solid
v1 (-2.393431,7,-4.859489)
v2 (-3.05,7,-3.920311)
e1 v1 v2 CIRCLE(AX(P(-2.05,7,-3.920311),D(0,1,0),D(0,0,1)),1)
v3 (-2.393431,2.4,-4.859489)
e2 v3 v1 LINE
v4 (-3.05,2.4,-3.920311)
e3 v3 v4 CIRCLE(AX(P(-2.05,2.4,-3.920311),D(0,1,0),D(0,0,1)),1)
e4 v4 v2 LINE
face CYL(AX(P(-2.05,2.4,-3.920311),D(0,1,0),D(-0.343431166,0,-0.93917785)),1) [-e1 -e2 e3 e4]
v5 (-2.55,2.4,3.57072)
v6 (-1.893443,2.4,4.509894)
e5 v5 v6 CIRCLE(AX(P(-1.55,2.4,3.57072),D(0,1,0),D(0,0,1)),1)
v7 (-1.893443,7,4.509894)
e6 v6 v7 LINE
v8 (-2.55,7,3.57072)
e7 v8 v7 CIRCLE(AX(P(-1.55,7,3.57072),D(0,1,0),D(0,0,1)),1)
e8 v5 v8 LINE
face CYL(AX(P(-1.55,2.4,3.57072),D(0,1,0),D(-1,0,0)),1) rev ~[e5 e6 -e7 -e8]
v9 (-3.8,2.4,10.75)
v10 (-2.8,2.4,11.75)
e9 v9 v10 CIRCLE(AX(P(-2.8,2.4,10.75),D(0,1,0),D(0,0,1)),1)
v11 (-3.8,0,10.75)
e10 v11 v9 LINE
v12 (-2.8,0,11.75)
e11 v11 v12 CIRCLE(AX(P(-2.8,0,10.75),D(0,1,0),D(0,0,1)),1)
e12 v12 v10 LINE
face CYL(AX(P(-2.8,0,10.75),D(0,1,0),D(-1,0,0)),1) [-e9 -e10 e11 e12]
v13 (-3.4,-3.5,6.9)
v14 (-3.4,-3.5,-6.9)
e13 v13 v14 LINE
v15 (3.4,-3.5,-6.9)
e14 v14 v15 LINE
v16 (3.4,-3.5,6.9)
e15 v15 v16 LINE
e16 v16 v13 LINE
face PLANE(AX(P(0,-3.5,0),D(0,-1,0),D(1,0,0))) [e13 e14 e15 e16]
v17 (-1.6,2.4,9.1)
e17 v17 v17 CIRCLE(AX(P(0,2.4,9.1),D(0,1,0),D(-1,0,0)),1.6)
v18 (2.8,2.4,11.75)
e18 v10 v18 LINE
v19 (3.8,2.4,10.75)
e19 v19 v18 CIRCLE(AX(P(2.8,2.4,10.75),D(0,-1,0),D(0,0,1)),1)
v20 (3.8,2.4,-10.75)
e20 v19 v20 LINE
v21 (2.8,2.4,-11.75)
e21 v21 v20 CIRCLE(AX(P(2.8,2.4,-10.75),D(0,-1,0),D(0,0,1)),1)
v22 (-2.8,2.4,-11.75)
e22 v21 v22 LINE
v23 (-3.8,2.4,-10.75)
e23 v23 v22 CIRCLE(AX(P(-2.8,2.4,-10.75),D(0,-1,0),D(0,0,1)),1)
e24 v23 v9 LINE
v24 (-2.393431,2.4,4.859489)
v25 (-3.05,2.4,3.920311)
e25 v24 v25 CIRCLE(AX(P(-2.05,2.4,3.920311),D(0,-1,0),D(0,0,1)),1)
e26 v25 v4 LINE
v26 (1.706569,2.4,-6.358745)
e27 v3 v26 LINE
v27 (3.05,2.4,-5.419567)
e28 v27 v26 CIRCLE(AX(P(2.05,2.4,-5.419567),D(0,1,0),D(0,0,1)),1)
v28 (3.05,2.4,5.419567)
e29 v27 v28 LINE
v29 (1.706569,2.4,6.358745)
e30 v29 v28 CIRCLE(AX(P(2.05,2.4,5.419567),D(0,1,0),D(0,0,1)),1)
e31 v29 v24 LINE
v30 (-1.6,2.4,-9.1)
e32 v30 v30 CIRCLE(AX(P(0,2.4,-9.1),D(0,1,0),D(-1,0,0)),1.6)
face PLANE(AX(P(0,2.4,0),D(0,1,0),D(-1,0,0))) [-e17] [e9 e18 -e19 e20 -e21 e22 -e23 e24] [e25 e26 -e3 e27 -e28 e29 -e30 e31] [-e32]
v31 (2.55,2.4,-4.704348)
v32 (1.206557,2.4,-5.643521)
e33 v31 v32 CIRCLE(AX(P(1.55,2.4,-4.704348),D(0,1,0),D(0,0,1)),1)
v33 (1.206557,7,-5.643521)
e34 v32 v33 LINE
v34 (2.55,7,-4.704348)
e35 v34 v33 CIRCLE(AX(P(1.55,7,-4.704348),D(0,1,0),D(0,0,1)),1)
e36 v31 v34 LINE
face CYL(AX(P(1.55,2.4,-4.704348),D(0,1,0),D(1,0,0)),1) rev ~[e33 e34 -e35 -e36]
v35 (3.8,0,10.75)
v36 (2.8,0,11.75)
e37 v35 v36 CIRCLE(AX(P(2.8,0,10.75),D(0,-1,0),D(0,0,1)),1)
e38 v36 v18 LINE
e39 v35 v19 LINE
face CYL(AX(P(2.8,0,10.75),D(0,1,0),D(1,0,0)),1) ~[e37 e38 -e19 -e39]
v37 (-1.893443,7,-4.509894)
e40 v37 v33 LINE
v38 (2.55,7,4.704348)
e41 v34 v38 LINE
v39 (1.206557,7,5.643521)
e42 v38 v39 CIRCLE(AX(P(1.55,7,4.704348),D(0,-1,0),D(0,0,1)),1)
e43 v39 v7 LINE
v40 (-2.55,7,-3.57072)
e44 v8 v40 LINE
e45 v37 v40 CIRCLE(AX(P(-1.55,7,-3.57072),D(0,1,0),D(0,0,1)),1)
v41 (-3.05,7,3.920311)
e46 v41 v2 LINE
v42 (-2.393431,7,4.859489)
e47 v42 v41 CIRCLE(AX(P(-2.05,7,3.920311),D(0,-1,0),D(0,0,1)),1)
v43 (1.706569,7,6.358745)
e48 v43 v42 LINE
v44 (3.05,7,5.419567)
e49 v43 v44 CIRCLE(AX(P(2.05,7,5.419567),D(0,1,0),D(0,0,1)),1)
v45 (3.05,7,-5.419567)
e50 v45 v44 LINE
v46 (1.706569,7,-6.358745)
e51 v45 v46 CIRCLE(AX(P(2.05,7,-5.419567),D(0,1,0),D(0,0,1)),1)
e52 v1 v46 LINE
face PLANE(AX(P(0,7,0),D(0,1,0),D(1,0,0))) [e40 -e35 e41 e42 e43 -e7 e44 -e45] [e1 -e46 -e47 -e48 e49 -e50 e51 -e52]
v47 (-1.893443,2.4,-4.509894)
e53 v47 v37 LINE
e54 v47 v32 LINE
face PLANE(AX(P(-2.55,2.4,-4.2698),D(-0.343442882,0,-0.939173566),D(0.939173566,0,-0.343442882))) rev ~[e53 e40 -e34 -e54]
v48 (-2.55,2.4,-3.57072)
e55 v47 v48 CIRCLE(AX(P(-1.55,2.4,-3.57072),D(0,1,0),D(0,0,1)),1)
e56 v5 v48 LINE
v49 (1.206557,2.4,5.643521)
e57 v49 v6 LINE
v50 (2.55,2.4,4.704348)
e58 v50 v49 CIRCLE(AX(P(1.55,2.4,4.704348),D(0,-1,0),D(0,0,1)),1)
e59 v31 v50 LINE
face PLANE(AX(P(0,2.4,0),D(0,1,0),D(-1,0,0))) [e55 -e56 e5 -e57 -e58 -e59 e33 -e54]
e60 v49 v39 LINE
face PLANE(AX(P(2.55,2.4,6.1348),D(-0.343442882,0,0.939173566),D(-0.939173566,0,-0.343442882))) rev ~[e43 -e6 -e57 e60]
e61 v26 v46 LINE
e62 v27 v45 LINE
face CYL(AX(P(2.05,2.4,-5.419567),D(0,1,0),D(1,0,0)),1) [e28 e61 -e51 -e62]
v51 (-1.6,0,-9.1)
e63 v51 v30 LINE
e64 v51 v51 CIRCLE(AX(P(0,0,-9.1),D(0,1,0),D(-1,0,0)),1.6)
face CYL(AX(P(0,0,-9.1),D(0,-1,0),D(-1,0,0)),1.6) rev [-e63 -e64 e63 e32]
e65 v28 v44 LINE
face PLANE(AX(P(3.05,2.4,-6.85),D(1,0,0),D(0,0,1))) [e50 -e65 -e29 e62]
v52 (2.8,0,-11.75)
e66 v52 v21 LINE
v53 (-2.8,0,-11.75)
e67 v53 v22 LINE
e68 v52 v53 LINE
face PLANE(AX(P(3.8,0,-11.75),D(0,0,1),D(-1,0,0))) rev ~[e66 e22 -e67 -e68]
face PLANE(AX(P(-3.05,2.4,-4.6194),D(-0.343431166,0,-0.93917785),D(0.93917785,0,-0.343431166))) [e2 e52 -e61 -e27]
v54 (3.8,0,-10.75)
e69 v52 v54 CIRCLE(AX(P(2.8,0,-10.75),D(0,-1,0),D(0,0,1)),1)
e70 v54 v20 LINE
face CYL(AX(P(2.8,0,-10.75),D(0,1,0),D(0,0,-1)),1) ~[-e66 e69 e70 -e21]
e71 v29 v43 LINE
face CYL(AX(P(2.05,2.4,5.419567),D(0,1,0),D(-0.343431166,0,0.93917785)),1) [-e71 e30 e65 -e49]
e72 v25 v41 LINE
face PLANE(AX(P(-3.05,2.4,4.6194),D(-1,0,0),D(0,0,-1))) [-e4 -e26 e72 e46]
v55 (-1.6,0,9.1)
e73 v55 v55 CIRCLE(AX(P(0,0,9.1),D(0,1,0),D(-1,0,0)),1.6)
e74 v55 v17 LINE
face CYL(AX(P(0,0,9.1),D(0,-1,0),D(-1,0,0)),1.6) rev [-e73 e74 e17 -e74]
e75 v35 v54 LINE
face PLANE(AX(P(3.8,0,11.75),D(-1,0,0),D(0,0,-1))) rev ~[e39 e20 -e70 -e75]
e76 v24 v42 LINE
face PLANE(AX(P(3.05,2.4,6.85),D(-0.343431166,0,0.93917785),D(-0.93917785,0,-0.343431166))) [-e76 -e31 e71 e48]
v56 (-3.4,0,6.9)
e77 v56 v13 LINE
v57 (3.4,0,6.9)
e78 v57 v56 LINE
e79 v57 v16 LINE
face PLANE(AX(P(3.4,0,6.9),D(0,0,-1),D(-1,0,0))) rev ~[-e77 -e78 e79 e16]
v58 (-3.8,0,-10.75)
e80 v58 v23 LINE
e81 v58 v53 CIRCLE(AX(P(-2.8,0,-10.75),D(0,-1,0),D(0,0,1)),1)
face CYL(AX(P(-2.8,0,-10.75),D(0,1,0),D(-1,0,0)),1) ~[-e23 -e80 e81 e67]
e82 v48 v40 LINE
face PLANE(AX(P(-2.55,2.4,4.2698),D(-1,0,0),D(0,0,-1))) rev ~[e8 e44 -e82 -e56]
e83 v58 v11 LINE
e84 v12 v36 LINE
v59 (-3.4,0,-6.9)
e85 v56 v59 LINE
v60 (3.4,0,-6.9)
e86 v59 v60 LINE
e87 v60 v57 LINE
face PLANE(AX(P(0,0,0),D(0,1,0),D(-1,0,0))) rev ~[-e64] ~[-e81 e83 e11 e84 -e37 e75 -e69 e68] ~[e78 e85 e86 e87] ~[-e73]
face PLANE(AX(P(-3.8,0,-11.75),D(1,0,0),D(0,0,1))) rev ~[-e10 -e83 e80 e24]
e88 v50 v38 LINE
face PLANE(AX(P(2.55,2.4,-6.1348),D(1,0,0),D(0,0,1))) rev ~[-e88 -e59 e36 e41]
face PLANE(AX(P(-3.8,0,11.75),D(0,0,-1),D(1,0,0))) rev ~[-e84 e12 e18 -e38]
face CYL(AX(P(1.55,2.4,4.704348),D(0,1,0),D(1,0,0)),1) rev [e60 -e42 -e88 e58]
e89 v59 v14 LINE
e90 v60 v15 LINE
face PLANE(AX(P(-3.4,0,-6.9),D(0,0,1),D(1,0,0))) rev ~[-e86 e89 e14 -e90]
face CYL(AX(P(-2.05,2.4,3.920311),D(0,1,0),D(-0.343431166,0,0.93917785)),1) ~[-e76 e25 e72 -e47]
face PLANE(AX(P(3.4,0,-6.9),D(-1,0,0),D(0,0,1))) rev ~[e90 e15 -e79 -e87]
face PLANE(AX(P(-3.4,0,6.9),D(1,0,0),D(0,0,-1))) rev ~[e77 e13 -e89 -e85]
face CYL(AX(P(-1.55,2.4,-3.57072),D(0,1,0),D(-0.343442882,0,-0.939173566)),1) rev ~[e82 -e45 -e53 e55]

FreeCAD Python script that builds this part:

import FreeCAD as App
import Part
import Sketcher

V = App.Vector
Q = App.Units.Quantity


def edges_at(feature, points):
    """Names of the edges that pass closest to the given points."""
    edges = feature.Shape.Edges
    near = lambda p: min(range(len(edges)), key=lambda i: edges[i].distToShape(Part.Vertex(*p))[0])
    return sorted({f"Edge{near(p) + 1}" for p in points})


def add_polygon(sketch, points):
    """Adds a closed chain of lines whose ends are joined by coincident constraints."""
    first, n = sketch.GeometryCount, len(points)
    for a, b in zip(points, points[1:] + points[:1]):
        sketch.addGeometry(Part.LineSegment(App.Vector(*a, 0), App.Vector(*b, 0)), False)
    for i in range(n):
        sketch.addConstraint(Sketcher.Constraint("Coincident", first + i, 2, first + (i + 1) % n, 1))

doc = App.newDocument("Part")
body = doc.addObject("PartDesign::Body", "Body")

# Sketch on XZ plane
sketch1 = body.newObject("Sketcher::SketchObject", "Sketch")
sketch1.AttachmentSupport = (doc.getObject("XZ_Plane"), [""])
sketch1.MapMode = "FlatFace"
add_polygon(sketch1, [(-3.8, -11.8), (-3.8, 11.8), (3.8, 11.8), (3.8, -11.8)])  # lines 0-3
sketch1.addGeometry(Part.Circle(V(0, -9.1, 0), V(0, 0, 1), 1.6), False)  # 4
sketch1.addGeometry(Part.Circle(V(0, 9.1, 0), V(0, 0, 1), 1.6), False)  # 5
sketch1.addConstraint([
    Sketcher.Constraint("Vertical", 0),
    Sketcher.Constraint("Horizontal", 1),
    Sketcher.Constraint("Vertical", 2),
    Sketcher.Constraint("Horizontal", 3),
    Sketcher.Constraint("Equal", 4, 5),
    Sketcher.Constraint("Symmetric", 4, 3, 5, 3, -1, 1),
    Sketcher.Constraint("Symmetric", 0, 2, 2, 2, -1, 1),
    Sketcher.Constraint("PointOnObject", 4, 3, -2),
    Sketcher.Constraint("Diameter", 4, Q("3.2 mm")),
    Sketcher.Constraint("DistanceX", 1, 1, 1, 2, Q("7.6 mm")),
    Sketcher.Constraint("DistanceY", 0, 1, 0, 2, Q("23.5 mm")),
    Sketcher.Constraint("DistanceY", 4, 3, -1, 1, Q("9.1 mm")),
])
pad1 = body.newObject("PartDesign::Pad", "Pad")
pad1.Profile = sketch1
pad1.Length = 2.4
pad1.Reversed = True
doc.recompute()

fillet = body.newObject("PartDesign::Fillet", "Fillet")
fillet.Base = (pad1, edges_at(pad1, [
    (3.8, 1.2, 11.75),
    (-3.8, 1.2, 11.75),
    (3.8, 1.2, -11.75),
    (-3.8, 1.2, -11.75),
]))
fillet.Radius = 1

# Sketch on XZ plane
sketch2 = body.newObject("Sketcher::SketchObject", "Sketch001")
sketch2.AttachmentSupport = (doc.getObject("XZ_Plane"), [""])
sketch2.MapMode = "FlatFace"
sketch2.AttachmentOffset = App.Placement(V(0, 0, -2.4), App.Rotation())
add_polygon(sketch2, [(-3, -5), (-3, 5), (3, 7), (3, -7)])  # lines 0-3
add_polygon(sketch2, [(3, -6), (3, 6), (-3, 4), (-3, -4)])  # lines 4-7
sketch2.addConstraint([
    Sketcher.Constraint("Vertical", 0),
    Sketcher.Constraint("Vertical", 2),
    Sketcher.Constraint("Vertical", 4),
    Sketcher.Constraint("Vertical", 6),
    Sketcher.Constraint("Parallel", 1, 5),
    Sketcher.Constraint("Parallel", 3, 7),
    Sketcher.Constraint("Equal", 1, 3),
    Sketcher.Constraint("DistanceY", 2, 2, 2, 1, Q("13.7 mm")),
    Sketcher.Constraint("DistanceX", 0, 2, 1, 2, Q("6.1 mm")),
    Sketcher.Constraint("DistanceX", 4, 2, 1, 2, Q("0.5 mm")),
    Sketcher.Constraint("DistanceX", 0, 2, 5, 2, Q("0.5 mm")),
    Sketcher.Constraint("DistanceX", 0, 2, -1, 1, Q("3.05 mm")),
    Sketcher.Constraint("DistanceY", -1, 1, 1, 2, Q("6.85 mm")),
    Sketcher.Constraint("Distance", 1, Q("6.495 mm")),
    Sketcher.Constraint("DistanceY", 4, 1, 4, 2, Q("12.2696 mm")),
    Sketcher.Constraint("DistanceY", -1, 1, 4, 2, Q("6.1348 mm")),
])
pad2 = body.newObject("PartDesign::Pad", "Pad001")
pad2.Profile = sketch2
pad2.Length = 4.6
pad2.Reversed = True
doc.recompute()

fillet2 = body.newObject("PartDesign::Fillet", "Fillet001")
fillet2.Base = (pad2, edges_at(pad2, [
    (-3.05, 4.7, -4.619),
    (-3.05, 4.7, 4.619),
    (3.05, 4.7, 6.85),
    (3.05, 4.7, -6.85),
    (-2.55, 4.7, -4.27),
    (-2.55, 4.7, 4.27),
    (2.55, 4.7, -6.135),
    (2.55, 4.7, 6.135),
]))
fillet2.Radius = 1

# Sketch on XZ plane
sketch3 = body.newObject("Sketcher::SketchObject", "Sketch002")
sketch3.AttachmentSupport = (doc.getObject("XZ_Plane"), [""])
sketch3.MapMode = "FlatFace"
add_polygon(sketch3, [(3, -7), (3, 7), (-3, 7), (-3, -7)])  # lines 0-3
sketch3.addConstraint([
    Sketcher.Constraint("Vertical", 0),
    Sketcher.Constraint("Horizontal", 1),
    Sketcher.Constraint("Vertical", 2),
    Sketcher.Constraint("Horizontal", 3),
    Sketcher.Constraint("Symmetric", 0, 2, 2, 2, -1, 1),
    Sketcher.Constraint("DistanceX", 1, 2, 1, 1, Q("6.8 mm")),
    Sketcher.Constraint("DistanceY", 0, 1, 0, 2, Q("13.8 mm")),
])
pad3 = body.newObject("PartDesign::Pad", "Pad002")
pad3.Profile = sketch3
pad3.Length = 3.5

doc.recompute()
